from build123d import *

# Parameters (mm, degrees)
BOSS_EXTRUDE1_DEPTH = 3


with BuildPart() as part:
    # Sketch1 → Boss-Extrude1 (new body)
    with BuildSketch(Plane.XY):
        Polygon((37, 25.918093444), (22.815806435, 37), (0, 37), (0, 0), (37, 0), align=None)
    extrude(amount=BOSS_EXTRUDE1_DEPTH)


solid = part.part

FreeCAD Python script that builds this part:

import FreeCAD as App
import Part
import Sketcher
from FreeCAD import Vector
Q = App.Units.Quantity

doc = App.newDocument("Part")
params = doc.addObject("Spreadsheet::Sheet", "Params")
for row, (alias, value) in enumerate([
    ("sketch1_width", "37 mm"),
    ("sketch1_length", "18 mm"),
    ("pad1_length", "3 mm"),
], start=1):
    params.set(f"A{row}", alias)
    params.set(f"B{row}", "=" + value)
    params.setAlias(f"B{row}", alias)

body = doc.addObject("PartDesign::Body", "Body")

# Sketch on XY plane
sketch1 = doc.addObject("Sketcher::SketchObject", "Sketch")
body.addObject(sketch1)
sketch1.AttachmentSupport = (doc.XY_Plane, [""])
sketch1.MapMode = "FlatFace"
sketch1.addGeometry([
    Part.LineSegment(Vector(37, 26, 0), Vector(23, 37, 0)),  # 0
    Part.LineSegment(Vector(23, 37, 0), Vector(0, 37, 0)),  # 1
    Part.LineSegment(Vector(0, 37, 0), Vector(0, 0, 0)),  # 2
    Part.LineSegment(Vector(0, 0, 0), Vector(37, 0, 0)),  # 3
    Part.LineSegment(Vector(37, 0, 0), Vector(37, 26, 0)),  # 4
], False)
sketch1.addConstraint([
    Sketcher.Constraint("Coincident", 0, 2, 1, 1),
    Sketcher.Constraint("Coincident", 1, 2, 2, 1),
    Sketcher.Constraint("Coincident", 2, 2, 3, 1),
    Sketcher.Constraint("Coincident", 3, 2, 4, 1),
    Sketcher.Constraint("Coincident", 4, 2, 0, 1),
    Sketcher.Constraint("Horizontal", 1),
    Sketcher.Constraint("Vertical", 2),
    Sketcher.Constraint("Horizontal", 3),
    Sketcher.Constraint("Vertical", 4),
    Sketcher.Constraint("Coincident", 2, 2, -1, 1),
    Sketcher.Constraint("Equal", 3, 2),
    Sketcher.Constraint("DistanceX", 3, 1, 3, 2, 37.0),
    Sketcher.Constraint("Angle", 0, Q("142 deg")),
    Sketcher.Constraint("Distance", 0, 18.0),
])
sketch1.setExpression("Constraints[11]", "Params.sketch1_width")
sketch1.setExpression("Constraints[13]", "Params.sketch1_length")
pad1 = doc.addObject("PartDesign::Pad", "Pad")
body.addObject(pad1)
pad1.Profile = sketch1
pad1.setExpression("Length", "Params.pad1_length")

doc.recompute()
